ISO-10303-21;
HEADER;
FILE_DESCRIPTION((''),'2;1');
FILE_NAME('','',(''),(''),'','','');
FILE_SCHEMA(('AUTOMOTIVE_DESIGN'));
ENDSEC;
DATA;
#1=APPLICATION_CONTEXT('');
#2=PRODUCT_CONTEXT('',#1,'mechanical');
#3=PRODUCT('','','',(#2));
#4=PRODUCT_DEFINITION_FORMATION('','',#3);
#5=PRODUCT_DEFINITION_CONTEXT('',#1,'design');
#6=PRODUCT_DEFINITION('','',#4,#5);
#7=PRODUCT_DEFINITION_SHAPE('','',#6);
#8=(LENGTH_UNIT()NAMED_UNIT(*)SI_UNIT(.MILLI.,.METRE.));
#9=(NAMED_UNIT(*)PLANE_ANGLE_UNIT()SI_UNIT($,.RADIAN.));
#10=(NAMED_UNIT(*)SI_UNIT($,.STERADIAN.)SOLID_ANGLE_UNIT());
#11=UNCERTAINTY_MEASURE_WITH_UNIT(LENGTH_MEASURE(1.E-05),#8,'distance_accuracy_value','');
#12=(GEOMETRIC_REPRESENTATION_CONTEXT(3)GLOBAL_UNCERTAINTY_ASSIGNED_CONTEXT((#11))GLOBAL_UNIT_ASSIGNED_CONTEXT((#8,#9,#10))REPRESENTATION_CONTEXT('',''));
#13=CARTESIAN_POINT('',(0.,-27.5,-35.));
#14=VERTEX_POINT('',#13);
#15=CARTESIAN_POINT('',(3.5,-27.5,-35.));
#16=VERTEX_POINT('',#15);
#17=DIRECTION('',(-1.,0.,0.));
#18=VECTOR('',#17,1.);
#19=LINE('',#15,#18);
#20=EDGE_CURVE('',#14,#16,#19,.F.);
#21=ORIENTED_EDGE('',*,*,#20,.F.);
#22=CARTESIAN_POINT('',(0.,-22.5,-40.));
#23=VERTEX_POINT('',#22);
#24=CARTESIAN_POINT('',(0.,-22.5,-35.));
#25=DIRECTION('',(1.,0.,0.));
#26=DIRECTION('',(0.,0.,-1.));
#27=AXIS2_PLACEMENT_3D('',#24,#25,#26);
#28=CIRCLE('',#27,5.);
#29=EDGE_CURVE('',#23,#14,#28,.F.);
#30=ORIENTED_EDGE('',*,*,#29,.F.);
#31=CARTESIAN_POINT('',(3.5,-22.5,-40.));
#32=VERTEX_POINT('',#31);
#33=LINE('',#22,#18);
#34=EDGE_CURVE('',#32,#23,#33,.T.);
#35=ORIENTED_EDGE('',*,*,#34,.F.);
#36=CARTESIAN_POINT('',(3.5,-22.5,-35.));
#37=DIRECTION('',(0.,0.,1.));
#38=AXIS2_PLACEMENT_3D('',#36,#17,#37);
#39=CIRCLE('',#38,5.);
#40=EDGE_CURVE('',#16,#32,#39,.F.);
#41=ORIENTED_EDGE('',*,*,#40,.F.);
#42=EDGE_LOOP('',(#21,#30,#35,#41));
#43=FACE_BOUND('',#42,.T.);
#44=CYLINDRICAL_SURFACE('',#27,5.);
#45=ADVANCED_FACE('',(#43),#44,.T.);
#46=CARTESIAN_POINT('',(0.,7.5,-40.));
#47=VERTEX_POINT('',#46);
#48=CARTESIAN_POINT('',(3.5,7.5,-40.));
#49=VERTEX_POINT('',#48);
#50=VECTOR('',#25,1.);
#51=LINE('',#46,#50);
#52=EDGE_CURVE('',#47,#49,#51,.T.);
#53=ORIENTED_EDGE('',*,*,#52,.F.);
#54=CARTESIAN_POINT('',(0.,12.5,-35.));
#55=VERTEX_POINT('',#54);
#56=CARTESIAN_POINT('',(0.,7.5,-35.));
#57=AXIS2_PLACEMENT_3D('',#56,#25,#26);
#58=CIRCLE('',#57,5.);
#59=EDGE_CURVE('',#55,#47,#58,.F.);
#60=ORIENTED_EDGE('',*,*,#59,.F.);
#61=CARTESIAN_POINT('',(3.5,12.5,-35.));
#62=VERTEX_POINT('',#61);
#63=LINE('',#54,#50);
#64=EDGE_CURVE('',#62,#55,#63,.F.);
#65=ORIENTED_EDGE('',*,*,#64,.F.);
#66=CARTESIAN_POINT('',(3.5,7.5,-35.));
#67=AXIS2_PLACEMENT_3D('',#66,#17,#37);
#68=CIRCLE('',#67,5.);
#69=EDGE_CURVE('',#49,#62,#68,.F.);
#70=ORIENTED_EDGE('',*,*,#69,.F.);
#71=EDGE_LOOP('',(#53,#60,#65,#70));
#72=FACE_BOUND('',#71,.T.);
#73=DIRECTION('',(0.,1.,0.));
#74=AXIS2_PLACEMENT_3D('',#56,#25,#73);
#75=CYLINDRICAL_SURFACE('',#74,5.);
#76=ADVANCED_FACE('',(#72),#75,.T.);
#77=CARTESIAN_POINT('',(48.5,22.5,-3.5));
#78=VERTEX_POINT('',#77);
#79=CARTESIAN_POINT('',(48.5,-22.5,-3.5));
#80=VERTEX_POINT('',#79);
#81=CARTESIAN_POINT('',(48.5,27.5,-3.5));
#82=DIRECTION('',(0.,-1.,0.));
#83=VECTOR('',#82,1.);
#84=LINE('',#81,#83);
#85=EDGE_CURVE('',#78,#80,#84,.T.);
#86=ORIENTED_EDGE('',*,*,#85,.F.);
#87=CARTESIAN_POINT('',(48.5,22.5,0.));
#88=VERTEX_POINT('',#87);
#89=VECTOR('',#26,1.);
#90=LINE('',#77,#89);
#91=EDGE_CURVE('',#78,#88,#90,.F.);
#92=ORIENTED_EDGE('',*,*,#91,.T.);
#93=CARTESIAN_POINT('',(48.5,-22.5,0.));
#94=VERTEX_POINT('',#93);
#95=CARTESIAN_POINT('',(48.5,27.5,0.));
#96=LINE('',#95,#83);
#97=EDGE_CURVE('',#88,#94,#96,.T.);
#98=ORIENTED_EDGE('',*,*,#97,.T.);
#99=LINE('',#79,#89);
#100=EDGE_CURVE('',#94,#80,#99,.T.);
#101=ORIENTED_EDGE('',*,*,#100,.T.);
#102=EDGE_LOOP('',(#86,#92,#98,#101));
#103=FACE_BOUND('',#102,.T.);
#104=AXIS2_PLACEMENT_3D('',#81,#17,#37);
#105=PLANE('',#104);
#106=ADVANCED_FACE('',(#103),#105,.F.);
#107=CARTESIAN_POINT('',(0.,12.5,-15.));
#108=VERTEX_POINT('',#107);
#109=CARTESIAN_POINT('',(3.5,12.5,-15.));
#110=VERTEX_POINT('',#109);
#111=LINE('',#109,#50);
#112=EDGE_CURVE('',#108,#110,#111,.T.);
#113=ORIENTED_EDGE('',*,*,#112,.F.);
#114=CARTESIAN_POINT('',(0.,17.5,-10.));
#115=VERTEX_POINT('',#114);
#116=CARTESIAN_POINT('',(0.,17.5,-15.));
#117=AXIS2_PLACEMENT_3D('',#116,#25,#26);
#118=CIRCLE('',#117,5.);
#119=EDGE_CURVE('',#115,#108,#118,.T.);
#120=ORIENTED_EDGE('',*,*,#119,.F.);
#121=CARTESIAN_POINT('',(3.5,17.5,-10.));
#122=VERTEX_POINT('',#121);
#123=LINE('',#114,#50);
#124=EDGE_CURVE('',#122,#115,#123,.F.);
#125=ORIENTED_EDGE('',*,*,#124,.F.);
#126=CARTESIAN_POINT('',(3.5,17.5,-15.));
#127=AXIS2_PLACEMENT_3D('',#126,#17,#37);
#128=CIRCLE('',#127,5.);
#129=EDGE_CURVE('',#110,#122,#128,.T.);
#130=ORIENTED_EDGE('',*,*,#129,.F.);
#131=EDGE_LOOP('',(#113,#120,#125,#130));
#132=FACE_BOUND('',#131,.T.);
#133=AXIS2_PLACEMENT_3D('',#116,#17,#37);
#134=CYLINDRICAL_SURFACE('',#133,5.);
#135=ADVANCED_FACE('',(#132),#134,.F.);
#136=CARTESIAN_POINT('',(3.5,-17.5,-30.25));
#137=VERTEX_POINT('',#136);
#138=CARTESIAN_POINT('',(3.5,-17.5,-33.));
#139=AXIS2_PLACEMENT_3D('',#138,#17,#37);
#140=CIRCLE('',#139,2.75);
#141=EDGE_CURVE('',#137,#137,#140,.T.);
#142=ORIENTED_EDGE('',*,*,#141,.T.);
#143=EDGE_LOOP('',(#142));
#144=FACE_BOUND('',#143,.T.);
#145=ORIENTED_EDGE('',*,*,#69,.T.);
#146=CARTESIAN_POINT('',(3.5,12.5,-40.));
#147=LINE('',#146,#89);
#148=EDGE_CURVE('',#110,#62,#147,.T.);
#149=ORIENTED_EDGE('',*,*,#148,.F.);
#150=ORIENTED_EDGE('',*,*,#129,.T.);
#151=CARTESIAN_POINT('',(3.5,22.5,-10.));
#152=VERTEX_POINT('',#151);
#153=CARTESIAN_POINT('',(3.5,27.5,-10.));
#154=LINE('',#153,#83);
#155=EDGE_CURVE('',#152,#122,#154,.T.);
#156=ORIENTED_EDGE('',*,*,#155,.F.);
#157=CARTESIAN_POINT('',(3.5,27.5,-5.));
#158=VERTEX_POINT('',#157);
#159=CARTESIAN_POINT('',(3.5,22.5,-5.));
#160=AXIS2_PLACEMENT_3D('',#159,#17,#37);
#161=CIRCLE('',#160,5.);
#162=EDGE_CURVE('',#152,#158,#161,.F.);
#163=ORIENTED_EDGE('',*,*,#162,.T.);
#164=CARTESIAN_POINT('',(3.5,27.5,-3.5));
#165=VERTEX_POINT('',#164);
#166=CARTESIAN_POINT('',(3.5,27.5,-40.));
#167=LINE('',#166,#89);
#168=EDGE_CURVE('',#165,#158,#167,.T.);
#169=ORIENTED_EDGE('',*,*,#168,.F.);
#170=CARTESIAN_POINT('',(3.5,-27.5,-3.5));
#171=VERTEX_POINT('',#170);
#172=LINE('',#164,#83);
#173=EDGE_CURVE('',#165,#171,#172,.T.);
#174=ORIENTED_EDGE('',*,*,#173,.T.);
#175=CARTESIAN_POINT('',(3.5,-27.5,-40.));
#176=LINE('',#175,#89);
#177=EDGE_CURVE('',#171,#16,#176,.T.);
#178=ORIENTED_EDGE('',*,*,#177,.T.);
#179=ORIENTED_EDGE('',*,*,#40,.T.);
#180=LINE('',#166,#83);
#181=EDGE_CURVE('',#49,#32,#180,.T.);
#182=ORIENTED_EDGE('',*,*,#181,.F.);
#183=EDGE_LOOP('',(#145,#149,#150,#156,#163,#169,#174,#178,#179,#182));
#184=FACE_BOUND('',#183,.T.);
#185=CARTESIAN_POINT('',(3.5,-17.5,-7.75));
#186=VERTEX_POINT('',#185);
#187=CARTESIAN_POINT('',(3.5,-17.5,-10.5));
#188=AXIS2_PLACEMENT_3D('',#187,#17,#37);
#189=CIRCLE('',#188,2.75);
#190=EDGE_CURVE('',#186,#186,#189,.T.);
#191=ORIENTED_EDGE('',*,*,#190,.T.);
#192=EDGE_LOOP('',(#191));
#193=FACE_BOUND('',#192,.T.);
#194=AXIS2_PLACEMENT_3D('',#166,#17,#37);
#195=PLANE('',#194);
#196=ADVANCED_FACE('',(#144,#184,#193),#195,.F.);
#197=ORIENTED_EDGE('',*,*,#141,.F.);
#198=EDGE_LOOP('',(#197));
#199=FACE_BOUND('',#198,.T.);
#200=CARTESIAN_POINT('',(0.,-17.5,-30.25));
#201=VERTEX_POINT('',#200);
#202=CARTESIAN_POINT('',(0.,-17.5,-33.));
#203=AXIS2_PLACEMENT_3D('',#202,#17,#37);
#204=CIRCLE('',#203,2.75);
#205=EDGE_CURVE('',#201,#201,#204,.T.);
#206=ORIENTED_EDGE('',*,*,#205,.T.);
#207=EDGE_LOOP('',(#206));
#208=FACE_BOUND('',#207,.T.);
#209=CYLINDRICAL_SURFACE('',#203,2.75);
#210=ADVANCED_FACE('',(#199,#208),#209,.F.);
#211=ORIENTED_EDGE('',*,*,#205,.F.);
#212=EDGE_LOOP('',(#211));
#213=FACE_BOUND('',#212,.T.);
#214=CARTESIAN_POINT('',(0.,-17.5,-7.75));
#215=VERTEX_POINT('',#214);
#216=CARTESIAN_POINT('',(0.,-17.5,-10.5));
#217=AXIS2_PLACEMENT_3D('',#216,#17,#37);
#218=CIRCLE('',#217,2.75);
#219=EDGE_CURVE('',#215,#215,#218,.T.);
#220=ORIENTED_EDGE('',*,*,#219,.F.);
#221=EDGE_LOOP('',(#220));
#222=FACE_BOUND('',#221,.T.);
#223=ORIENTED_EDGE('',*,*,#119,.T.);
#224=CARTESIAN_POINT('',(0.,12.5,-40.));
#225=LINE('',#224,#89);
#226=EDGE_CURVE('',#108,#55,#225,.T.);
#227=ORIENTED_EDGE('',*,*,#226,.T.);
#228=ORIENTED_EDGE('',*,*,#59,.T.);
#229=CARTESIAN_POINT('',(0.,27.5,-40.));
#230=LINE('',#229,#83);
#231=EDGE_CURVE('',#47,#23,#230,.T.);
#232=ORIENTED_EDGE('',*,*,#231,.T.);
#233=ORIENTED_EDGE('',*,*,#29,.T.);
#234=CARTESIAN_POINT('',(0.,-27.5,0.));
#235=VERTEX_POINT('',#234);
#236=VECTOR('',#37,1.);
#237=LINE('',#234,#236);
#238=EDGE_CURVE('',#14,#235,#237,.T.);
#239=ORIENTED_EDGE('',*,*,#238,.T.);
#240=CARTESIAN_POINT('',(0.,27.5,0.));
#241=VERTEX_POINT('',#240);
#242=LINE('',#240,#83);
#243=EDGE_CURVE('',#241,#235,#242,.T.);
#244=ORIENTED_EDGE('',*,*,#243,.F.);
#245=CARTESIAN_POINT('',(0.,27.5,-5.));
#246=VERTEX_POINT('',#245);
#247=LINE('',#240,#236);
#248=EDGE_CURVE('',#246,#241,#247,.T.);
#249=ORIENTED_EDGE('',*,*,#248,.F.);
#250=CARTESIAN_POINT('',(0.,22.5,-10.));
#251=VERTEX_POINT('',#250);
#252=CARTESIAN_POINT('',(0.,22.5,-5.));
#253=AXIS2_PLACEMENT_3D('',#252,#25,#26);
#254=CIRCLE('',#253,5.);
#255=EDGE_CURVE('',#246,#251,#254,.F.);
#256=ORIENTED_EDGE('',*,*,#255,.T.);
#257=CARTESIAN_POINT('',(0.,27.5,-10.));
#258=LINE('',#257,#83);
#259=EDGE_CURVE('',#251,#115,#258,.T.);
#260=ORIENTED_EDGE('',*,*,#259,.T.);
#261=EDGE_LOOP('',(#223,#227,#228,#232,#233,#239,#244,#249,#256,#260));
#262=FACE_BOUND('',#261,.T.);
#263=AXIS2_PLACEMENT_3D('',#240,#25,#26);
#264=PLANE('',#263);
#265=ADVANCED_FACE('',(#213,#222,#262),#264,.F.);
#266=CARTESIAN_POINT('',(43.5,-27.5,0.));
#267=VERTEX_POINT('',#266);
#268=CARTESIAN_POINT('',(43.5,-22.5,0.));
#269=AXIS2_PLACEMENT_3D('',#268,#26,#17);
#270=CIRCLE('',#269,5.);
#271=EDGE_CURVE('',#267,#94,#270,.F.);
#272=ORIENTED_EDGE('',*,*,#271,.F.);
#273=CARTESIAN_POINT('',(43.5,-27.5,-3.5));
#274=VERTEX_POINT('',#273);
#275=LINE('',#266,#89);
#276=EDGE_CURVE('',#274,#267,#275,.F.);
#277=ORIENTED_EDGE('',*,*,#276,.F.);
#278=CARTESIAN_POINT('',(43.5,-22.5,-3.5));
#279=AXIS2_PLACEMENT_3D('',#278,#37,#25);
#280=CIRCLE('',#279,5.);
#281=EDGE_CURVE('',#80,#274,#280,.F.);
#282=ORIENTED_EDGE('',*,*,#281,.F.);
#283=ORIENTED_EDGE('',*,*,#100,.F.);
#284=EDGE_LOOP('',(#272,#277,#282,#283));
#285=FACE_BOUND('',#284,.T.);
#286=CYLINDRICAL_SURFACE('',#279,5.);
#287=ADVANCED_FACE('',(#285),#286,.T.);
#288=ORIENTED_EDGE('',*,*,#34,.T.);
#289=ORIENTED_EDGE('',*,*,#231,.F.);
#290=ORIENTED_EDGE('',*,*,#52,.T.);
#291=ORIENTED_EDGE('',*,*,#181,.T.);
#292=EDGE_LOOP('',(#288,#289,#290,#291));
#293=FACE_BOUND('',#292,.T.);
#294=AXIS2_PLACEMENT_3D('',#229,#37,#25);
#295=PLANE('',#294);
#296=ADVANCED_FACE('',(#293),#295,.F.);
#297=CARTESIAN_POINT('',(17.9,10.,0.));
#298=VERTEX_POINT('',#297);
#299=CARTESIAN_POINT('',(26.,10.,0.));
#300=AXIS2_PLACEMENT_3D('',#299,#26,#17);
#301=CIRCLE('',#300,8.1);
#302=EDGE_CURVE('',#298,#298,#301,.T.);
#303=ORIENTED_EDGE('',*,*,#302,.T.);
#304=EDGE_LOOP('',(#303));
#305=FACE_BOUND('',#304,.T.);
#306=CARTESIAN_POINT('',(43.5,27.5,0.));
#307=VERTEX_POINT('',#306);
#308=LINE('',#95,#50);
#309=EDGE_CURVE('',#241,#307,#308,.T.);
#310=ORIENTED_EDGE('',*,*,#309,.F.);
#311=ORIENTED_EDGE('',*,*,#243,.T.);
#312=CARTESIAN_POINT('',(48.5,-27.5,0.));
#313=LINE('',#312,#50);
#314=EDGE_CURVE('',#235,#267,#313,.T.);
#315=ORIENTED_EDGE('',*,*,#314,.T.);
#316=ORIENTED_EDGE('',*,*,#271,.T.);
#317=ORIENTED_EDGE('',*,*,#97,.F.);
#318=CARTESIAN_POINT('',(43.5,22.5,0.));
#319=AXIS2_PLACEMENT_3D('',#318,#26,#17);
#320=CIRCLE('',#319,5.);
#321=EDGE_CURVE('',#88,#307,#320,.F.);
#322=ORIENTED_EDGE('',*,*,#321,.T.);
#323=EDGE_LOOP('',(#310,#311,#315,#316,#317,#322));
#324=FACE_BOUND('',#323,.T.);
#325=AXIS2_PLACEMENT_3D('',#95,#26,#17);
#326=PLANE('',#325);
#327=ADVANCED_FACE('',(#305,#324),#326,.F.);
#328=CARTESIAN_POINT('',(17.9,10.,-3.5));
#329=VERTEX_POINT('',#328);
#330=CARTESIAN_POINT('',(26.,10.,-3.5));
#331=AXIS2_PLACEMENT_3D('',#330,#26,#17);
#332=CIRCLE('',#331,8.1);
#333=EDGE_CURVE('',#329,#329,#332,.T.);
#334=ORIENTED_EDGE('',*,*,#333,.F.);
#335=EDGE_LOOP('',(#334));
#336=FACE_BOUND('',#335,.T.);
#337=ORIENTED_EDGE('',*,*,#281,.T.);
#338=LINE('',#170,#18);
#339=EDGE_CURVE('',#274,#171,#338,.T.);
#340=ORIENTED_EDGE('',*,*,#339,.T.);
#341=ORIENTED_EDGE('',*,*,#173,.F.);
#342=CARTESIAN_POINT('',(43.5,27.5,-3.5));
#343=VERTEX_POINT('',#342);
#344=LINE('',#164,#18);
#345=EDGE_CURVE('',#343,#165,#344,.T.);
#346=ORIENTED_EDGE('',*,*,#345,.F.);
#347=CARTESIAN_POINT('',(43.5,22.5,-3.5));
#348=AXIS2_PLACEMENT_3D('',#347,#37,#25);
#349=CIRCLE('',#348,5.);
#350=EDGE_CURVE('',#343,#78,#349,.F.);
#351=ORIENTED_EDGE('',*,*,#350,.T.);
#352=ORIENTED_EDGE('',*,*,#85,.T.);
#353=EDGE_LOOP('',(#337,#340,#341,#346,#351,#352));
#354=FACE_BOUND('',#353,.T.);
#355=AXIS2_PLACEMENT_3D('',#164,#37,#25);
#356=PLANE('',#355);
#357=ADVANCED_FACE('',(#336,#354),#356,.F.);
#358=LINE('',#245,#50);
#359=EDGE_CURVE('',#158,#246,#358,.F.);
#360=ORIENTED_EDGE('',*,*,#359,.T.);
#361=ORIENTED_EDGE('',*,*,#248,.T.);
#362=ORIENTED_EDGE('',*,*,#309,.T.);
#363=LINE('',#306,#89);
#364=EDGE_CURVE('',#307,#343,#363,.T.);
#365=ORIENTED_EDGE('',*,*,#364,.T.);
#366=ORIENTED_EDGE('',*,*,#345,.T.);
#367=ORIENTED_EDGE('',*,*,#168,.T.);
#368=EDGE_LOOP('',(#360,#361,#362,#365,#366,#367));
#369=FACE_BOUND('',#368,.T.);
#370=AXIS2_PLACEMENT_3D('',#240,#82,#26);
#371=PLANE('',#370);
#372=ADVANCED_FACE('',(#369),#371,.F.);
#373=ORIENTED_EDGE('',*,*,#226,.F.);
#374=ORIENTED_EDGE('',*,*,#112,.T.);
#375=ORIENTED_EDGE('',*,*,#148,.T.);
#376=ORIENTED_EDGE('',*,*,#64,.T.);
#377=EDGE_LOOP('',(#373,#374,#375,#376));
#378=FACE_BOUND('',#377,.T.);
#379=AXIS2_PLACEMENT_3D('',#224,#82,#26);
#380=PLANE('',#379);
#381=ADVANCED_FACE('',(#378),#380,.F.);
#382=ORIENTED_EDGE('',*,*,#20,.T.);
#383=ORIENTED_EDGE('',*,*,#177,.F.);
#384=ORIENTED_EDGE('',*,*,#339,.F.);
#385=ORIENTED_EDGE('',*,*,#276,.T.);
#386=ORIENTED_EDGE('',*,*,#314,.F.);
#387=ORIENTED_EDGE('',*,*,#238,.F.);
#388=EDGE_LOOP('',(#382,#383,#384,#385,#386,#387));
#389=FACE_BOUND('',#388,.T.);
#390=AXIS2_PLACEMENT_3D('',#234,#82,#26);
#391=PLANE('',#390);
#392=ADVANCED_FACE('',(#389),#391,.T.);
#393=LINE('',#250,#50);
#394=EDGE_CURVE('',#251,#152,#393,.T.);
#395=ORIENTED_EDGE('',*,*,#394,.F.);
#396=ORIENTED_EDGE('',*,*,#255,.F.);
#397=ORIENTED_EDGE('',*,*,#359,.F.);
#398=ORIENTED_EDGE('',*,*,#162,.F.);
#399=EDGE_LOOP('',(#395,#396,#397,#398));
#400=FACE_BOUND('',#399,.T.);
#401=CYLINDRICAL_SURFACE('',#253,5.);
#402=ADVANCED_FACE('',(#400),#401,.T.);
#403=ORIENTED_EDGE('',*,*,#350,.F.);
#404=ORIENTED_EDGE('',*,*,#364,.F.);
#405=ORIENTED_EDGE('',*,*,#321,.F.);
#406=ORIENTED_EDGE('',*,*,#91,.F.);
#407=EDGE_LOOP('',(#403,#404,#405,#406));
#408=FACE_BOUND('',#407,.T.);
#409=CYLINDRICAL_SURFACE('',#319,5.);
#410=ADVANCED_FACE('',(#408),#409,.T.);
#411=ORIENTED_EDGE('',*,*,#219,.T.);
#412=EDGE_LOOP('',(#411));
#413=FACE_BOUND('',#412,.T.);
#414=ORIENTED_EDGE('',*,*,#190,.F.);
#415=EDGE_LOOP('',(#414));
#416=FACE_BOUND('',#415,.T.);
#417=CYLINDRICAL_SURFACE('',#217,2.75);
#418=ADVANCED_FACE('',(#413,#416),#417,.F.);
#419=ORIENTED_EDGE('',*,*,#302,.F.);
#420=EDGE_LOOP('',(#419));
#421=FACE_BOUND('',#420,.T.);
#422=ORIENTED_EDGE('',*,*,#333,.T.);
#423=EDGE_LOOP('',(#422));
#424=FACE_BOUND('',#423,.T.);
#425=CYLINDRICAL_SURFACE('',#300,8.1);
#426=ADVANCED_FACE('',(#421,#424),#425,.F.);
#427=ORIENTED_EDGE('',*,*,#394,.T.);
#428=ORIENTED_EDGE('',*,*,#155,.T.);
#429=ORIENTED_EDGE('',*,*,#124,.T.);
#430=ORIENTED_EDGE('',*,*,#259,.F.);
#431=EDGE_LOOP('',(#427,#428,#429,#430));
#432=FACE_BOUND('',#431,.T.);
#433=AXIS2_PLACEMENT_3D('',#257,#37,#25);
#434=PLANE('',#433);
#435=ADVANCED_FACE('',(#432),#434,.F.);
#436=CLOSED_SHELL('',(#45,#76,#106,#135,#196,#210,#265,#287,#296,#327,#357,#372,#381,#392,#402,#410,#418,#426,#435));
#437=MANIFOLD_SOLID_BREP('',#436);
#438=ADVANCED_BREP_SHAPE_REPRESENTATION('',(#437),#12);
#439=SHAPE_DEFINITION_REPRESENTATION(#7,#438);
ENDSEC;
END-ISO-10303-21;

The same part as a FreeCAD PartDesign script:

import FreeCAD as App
import Part
import Sketcher
Q = App.Units.Quantity


def edges_at(feature, points):
    """Names of the edges that pass closest to the given points."""
    edges = feature.Shape.Edges
    near = lambda p: min(range(len(edges)), key=lambda i: edges[i].distToShape(Part.Vertex(*p))[0])
    return sorted({f"Edge{near(p) + 1}" for p in points})


def add_polygon(sketch, points):
    """Adds a closed chain of lines whose ends are joined by coincident constraints."""
    first, n = sketch.GeometryCount, len(points)
    for a, b in zip(points, points[1:] + points[:1]):
        sketch.addGeometry(Part.LineSegment(App.Vector(*a, 0), App.Vector(*b, 0)), False)
    for i in range(n):
        sketch.addConstraint(Sketcher.Constraint("Coincident", first + i, 2, first + (i + 1) % n, 1))

doc = App.newDocument("Part")
body = doc.addObject("PartDesign::Body", "Body")

sketch1 = body.newObject("Sketcher::SketchObject", "Sketch")
sketch1.AttachmentSupport = (doc.getObject("XZ_Plane"), [""])
sketch1.MapMode = "FlatFace"
add_polygon(sketch1, [(0, -40), (0, 0), (48.5, 0), (48.5, -3.5), (3.5, -3.5), (3.5, -40)])
sketch1.addConstraint(Sketcher.Constraint("Vertical", 0))
sketch1.addConstraint(Sketcher.Constraint("Horizontal", 1))
sketch1.addConstraint(Sketcher.Constraint("Vertical", 2))
sketch1.addConstraint(Sketcher.Constraint("Horizontal", 3))
sketch1.addConstraint(Sketcher.Constraint("Vertical", 4))
sketch1.addConstraint(Sketcher.Constraint("Horizontal", 5))
sketch1.addConstraint(Sketcher.Constraint("Coincident", 0, 2, -1, 1))
sketch1.addConstraint(Sketcher.Constraint("Equal", 5, 2))
sketch1.addConstraint(Sketcher.Constraint("DistanceX", 3, 2, 3, 1, Q("45 mm")))
sketch1.addConstraint(Sketcher.Constraint("DistanceY", 0, 1, 0, 2, Q("40 mm")))
sketch1.addConstraint(Sketcher.Constraint("DistanceX", 1, 1, 1, 2, Q("48.5 mm")))
pad1 = body.newObject("PartDesign::Pad", "Pad")
pad1.Profile = sketch1
pad1.Length = 55
pad1.Midplane = True

sketch2 = body.newObject("Sketcher::SketchObject", "Sketch001")
sketch2.AttachmentSupport = (doc.getObject("XY_Plane"), [""])
sketch2.MapMode = "FlatFace"
sketch2.AttachmentOffset = App.Placement(App.Vector(0, 0, -3.5), App.Rotation())
sketch2.addGeometry(Part.Circle(App.Vector(26, 10, 0), App.Vector(0, 0, 1), 8), False)
sketch2.addConstraint(Sketcher.Constraint("Diameter", 0, Q("16.2 mm")))
sketch2.addConstraint(Sketcher.Constraint("DistanceX", -1, 1, 0, 3, Q("26 mm")))
sketch2.addConstraint(Sketcher.Constraint("DistanceY", -1, 1, 0, 3, Q("10 mm")))
pocket1 = body.newObject("PartDesign::Pocket", "Pocket")
pocket1.Profile = sketch2
pocket1.Type = "ThroughAll"
pocket1.Reversed = True

sketch3 = body.newObject("Sketcher::SketchObject", "Sketch002")
sketch3.AttachmentSupport = (doc.getObject("YZ_Plane"), [""])
sketch3.MapMode = "FlatFace"
sketch3.addGeometry(Part.Circle(App.Vector(-17.5, -10.5, 0), App.Vector(0, 0, 1), 2.8), False)
sketch3.addGeometry(Part.Circle(App.Vector(-17.5, -33, 0), App.Vector(0, 0, 1), 2.8), False)
sketch3.addConstraint(Sketcher.Constraint("Equal", 0, 1))
sketch3.addConstraint(Sketcher.Constraint("Vertical", 0, 3, 1, 3))
sketch3.addConstraint(Sketcher.Constraint("Diameter", 0, Q("5.5 mm")))
sketch3.addConstraint(Sketcher.Constraint("DistanceY", 1, 3, -1, 1, Q("33 mm")))
sketch3.addConstraint(Sketcher.Constraint("DistanceX", 0, 3, -1, 1, Q("17.5 mm")))
sketch3.addConstraint(Sketcher.Constraint("DistanceY", 0, 3, -1, 1, Q("10.5 mm")))
doc.recompute()
hole = body.newObject("PartDesign::Hole", "Hole")
hole.Profile = sketch3
hole.ThreadType = "None"
hole.Diameter = 5.5
hole.DepthType = "ThroughAll"
hole.Reversed = True

sketch4 = body.newObject("Sketcher::SketchObject", "Sketch003")
sketch4.AttachmentSupport = (doc.getObject("YZ_Plane"), [""])
sketch4.MapMode = "FlatFace"
sketch4.AttachmentOffset = App.Placement(App.Vector(0, 0, 3.5), App.Rotation())
add_polygon(sketch4, [(28, -10), (12, -10), (12, -40), (28, -40)])
sketch4.addConstraint(Sketcher.Constraint("Horizontal", 0))
sketch4.addConstraint(Sketcher.Constraint("Vertical", 1))
sketch4.addConstraint(Sketcher.Constraint("Horizontal", 2))
sketch4.addConstraint(Sketcher.Constraint("Vertical", 3))
sketch4.addConstraint(Sketcher.Constraint("DistanceX", 0, 2, 0, 1, Q("15 mm")))
sketch4.addConstraint(Sketcher.Constraint("DistanceY", 1, 2, 1, 1, Q("30 mm")))
sketch4.addConstraint(Sketcher.Constraint("DistanceY", 0, 2, -1, 1, Q("10 mm")))
sketch4.addConstraint(Sketcher.Constraint("DistanceX", -1, 1, 0, 2, Q("12.5 mm")))
pocket2 = body.newObject("PartDesign::Pocket", "Pocket001")
pocket2.Profile = sketch4
pocket2.Type = "ThroughAll"
doc.recompute()

fillet = body.newObject("PartDesign::Fillet", "Fillet")
fillet.Base = (pocket2, edges_at(pocket2, [
    (1.75, 12.5, -40),
    (1.75, 12.5, -10),
    (1.75, 27.5, -10),
    (1.75, -27.5, -40),
    (48.5, -27.5, -1.75),
    (48.5, 27.5, -1.75),
]))
fillet.Radius = 5

doc.recompute()
